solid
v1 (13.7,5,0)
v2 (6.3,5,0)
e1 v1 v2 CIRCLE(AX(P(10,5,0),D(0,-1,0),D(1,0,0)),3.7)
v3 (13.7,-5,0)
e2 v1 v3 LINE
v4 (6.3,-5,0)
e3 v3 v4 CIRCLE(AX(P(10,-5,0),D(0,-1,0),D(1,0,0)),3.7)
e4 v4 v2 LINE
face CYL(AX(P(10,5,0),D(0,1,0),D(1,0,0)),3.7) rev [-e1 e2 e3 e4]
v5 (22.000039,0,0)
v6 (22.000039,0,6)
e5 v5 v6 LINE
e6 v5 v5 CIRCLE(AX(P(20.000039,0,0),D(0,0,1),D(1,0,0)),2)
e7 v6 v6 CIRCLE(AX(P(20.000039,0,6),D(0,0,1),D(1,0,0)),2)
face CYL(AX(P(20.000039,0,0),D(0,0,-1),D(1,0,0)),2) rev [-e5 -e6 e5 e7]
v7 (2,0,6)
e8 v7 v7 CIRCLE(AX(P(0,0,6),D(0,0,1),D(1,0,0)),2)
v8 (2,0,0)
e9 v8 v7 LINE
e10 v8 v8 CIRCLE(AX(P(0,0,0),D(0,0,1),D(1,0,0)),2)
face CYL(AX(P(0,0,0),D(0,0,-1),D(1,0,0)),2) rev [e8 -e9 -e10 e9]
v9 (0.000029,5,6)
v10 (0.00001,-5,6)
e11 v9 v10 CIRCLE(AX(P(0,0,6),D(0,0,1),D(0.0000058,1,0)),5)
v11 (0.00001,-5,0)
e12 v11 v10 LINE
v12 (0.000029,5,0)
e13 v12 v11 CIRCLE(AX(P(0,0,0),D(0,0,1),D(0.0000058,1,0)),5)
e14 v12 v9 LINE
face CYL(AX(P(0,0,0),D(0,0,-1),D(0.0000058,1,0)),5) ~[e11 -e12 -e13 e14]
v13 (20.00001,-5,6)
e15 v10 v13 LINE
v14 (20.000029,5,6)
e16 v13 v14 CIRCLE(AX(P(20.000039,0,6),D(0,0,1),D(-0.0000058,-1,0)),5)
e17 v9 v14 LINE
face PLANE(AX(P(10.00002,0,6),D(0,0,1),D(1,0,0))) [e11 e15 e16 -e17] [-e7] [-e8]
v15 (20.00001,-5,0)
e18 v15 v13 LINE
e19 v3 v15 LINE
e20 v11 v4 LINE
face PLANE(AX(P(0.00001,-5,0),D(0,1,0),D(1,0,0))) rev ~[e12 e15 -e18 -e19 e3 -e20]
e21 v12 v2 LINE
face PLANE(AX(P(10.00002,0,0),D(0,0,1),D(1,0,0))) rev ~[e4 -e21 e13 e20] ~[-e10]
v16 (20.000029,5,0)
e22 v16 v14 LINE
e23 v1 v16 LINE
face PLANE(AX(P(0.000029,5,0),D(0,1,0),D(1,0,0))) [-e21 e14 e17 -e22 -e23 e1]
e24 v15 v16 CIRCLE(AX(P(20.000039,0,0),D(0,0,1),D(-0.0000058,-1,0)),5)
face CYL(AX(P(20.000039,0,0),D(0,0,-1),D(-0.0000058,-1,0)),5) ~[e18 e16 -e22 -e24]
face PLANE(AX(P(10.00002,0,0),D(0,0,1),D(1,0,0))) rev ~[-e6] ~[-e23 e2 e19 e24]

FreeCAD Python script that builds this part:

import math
import FreeCAD as App
import Part
import Sketcher

V = App.Vector

doc = App.newDocument("Part")
body = doc.addObject("PartDesign::Body", "Body")

# Sketch on XY plane
sketch1 = body.newObject("Sketcher::SketchObject", "Sketch")
sketch1.AttachmentSupport = (doc.getObject("XY_Plane"), [""])
sketch1.MapMode = "FlatFace"
sketch1.addGeometry([
    Part.ArcOfCircle(Part.Circle(V(0, 0, 0), V(0, 0, 1), 5), math.radians(90), math.radians(270)),  # 0
    Part.LineSegment(V(0, -5, 0), V(20, -5, 0)),  # 1
    Part.ArcOfCircle(Part.Circle(V(20, 0, 0), V(0, 0, 1), 5), math.radians(-90), math.radians(90)),  # 2
    Part.LineSegment(V(20, 5, 0), V(0, 5, 0)),  # 3
    Part.Circle(V(0, 0, 0), V(0, 0, 1), 2),  # 4
    Part.Circle(V(20, 0, 0), V(0, 0, 1), 2),  # 5
], False)
sketch1.addConstraint([
    Sketcher.Constraint("Tangent", 0, 2, 1, 1),
    Sketcher.Constraint("Coincident", 1, 2, 2, 1),
    Sketcher.Constraint("Tangent", 2, 2, 3, 1),
    Sketcher.Constraint("Coincident", 3, 2, 0, 1),
    Sketcher.Constraint("Horizontal", 1),
    Sketcher.Constraint("Horizontal", 3),
    Sketcher.Constraint("Coincident", 0, 3, -1, 1),
    Sketcher.Constraint("Coincident", 4, 3, -1, 1),
    Sketcher.Constraint("Coincident", 5, 3, 2, 3),
    Sketcher.Constraint("Equal", 4, 5),
    Sketcher.Constraint("Equal", 1, 3),
    Sketcher.Constraint("Diameter", 4, 4.0),
    Sketcher.Constraint("Radius", 0, 5.0),
    Sketcher.Constraint("DistanceX", 1, 1, 1, 2, 20.0),
    Sketcher.Constraint("DistanceX", -1, 1, 2, 3, 20.000039),
])
pad1 = body.newObject("PartDesign::Pad", "Pad")
pad1.Profile = sketch1
pad1.Length = 6

# Sketch on XZ plane
sketch2 = body.newObject("Sketcher::SketchObject", "Sketch001")
sketch2.AttachmentSupport = (doc.getObject("XZ_Plane"), [""])
sketch2.MapMode = "FlatFace"
sketch2.AttachmentOffset = App.Placement(V(0, 0, -5), App.Rotation())
sketch2.addGeometry(Part.Circle(V(10, 0, 0), V(0, 0, 1), 3.7), False)
sketch2.addConstraint([
    Sketcher.Constraint("PointOnObject", 0, 3, -1),
    Sketcher.Constraint("Diameter", 0, 7.4),
    Sketcher.Constraint("DistanceX", -1, 1, 0, 3, 10.0),
])
pocket1 = body.newObject("PartDesign::Pocket", "Pocket")
pocket1.Profile = sketch2
pocket1.Length = 10
pocket1.Reversed = True

doc.recompute()
